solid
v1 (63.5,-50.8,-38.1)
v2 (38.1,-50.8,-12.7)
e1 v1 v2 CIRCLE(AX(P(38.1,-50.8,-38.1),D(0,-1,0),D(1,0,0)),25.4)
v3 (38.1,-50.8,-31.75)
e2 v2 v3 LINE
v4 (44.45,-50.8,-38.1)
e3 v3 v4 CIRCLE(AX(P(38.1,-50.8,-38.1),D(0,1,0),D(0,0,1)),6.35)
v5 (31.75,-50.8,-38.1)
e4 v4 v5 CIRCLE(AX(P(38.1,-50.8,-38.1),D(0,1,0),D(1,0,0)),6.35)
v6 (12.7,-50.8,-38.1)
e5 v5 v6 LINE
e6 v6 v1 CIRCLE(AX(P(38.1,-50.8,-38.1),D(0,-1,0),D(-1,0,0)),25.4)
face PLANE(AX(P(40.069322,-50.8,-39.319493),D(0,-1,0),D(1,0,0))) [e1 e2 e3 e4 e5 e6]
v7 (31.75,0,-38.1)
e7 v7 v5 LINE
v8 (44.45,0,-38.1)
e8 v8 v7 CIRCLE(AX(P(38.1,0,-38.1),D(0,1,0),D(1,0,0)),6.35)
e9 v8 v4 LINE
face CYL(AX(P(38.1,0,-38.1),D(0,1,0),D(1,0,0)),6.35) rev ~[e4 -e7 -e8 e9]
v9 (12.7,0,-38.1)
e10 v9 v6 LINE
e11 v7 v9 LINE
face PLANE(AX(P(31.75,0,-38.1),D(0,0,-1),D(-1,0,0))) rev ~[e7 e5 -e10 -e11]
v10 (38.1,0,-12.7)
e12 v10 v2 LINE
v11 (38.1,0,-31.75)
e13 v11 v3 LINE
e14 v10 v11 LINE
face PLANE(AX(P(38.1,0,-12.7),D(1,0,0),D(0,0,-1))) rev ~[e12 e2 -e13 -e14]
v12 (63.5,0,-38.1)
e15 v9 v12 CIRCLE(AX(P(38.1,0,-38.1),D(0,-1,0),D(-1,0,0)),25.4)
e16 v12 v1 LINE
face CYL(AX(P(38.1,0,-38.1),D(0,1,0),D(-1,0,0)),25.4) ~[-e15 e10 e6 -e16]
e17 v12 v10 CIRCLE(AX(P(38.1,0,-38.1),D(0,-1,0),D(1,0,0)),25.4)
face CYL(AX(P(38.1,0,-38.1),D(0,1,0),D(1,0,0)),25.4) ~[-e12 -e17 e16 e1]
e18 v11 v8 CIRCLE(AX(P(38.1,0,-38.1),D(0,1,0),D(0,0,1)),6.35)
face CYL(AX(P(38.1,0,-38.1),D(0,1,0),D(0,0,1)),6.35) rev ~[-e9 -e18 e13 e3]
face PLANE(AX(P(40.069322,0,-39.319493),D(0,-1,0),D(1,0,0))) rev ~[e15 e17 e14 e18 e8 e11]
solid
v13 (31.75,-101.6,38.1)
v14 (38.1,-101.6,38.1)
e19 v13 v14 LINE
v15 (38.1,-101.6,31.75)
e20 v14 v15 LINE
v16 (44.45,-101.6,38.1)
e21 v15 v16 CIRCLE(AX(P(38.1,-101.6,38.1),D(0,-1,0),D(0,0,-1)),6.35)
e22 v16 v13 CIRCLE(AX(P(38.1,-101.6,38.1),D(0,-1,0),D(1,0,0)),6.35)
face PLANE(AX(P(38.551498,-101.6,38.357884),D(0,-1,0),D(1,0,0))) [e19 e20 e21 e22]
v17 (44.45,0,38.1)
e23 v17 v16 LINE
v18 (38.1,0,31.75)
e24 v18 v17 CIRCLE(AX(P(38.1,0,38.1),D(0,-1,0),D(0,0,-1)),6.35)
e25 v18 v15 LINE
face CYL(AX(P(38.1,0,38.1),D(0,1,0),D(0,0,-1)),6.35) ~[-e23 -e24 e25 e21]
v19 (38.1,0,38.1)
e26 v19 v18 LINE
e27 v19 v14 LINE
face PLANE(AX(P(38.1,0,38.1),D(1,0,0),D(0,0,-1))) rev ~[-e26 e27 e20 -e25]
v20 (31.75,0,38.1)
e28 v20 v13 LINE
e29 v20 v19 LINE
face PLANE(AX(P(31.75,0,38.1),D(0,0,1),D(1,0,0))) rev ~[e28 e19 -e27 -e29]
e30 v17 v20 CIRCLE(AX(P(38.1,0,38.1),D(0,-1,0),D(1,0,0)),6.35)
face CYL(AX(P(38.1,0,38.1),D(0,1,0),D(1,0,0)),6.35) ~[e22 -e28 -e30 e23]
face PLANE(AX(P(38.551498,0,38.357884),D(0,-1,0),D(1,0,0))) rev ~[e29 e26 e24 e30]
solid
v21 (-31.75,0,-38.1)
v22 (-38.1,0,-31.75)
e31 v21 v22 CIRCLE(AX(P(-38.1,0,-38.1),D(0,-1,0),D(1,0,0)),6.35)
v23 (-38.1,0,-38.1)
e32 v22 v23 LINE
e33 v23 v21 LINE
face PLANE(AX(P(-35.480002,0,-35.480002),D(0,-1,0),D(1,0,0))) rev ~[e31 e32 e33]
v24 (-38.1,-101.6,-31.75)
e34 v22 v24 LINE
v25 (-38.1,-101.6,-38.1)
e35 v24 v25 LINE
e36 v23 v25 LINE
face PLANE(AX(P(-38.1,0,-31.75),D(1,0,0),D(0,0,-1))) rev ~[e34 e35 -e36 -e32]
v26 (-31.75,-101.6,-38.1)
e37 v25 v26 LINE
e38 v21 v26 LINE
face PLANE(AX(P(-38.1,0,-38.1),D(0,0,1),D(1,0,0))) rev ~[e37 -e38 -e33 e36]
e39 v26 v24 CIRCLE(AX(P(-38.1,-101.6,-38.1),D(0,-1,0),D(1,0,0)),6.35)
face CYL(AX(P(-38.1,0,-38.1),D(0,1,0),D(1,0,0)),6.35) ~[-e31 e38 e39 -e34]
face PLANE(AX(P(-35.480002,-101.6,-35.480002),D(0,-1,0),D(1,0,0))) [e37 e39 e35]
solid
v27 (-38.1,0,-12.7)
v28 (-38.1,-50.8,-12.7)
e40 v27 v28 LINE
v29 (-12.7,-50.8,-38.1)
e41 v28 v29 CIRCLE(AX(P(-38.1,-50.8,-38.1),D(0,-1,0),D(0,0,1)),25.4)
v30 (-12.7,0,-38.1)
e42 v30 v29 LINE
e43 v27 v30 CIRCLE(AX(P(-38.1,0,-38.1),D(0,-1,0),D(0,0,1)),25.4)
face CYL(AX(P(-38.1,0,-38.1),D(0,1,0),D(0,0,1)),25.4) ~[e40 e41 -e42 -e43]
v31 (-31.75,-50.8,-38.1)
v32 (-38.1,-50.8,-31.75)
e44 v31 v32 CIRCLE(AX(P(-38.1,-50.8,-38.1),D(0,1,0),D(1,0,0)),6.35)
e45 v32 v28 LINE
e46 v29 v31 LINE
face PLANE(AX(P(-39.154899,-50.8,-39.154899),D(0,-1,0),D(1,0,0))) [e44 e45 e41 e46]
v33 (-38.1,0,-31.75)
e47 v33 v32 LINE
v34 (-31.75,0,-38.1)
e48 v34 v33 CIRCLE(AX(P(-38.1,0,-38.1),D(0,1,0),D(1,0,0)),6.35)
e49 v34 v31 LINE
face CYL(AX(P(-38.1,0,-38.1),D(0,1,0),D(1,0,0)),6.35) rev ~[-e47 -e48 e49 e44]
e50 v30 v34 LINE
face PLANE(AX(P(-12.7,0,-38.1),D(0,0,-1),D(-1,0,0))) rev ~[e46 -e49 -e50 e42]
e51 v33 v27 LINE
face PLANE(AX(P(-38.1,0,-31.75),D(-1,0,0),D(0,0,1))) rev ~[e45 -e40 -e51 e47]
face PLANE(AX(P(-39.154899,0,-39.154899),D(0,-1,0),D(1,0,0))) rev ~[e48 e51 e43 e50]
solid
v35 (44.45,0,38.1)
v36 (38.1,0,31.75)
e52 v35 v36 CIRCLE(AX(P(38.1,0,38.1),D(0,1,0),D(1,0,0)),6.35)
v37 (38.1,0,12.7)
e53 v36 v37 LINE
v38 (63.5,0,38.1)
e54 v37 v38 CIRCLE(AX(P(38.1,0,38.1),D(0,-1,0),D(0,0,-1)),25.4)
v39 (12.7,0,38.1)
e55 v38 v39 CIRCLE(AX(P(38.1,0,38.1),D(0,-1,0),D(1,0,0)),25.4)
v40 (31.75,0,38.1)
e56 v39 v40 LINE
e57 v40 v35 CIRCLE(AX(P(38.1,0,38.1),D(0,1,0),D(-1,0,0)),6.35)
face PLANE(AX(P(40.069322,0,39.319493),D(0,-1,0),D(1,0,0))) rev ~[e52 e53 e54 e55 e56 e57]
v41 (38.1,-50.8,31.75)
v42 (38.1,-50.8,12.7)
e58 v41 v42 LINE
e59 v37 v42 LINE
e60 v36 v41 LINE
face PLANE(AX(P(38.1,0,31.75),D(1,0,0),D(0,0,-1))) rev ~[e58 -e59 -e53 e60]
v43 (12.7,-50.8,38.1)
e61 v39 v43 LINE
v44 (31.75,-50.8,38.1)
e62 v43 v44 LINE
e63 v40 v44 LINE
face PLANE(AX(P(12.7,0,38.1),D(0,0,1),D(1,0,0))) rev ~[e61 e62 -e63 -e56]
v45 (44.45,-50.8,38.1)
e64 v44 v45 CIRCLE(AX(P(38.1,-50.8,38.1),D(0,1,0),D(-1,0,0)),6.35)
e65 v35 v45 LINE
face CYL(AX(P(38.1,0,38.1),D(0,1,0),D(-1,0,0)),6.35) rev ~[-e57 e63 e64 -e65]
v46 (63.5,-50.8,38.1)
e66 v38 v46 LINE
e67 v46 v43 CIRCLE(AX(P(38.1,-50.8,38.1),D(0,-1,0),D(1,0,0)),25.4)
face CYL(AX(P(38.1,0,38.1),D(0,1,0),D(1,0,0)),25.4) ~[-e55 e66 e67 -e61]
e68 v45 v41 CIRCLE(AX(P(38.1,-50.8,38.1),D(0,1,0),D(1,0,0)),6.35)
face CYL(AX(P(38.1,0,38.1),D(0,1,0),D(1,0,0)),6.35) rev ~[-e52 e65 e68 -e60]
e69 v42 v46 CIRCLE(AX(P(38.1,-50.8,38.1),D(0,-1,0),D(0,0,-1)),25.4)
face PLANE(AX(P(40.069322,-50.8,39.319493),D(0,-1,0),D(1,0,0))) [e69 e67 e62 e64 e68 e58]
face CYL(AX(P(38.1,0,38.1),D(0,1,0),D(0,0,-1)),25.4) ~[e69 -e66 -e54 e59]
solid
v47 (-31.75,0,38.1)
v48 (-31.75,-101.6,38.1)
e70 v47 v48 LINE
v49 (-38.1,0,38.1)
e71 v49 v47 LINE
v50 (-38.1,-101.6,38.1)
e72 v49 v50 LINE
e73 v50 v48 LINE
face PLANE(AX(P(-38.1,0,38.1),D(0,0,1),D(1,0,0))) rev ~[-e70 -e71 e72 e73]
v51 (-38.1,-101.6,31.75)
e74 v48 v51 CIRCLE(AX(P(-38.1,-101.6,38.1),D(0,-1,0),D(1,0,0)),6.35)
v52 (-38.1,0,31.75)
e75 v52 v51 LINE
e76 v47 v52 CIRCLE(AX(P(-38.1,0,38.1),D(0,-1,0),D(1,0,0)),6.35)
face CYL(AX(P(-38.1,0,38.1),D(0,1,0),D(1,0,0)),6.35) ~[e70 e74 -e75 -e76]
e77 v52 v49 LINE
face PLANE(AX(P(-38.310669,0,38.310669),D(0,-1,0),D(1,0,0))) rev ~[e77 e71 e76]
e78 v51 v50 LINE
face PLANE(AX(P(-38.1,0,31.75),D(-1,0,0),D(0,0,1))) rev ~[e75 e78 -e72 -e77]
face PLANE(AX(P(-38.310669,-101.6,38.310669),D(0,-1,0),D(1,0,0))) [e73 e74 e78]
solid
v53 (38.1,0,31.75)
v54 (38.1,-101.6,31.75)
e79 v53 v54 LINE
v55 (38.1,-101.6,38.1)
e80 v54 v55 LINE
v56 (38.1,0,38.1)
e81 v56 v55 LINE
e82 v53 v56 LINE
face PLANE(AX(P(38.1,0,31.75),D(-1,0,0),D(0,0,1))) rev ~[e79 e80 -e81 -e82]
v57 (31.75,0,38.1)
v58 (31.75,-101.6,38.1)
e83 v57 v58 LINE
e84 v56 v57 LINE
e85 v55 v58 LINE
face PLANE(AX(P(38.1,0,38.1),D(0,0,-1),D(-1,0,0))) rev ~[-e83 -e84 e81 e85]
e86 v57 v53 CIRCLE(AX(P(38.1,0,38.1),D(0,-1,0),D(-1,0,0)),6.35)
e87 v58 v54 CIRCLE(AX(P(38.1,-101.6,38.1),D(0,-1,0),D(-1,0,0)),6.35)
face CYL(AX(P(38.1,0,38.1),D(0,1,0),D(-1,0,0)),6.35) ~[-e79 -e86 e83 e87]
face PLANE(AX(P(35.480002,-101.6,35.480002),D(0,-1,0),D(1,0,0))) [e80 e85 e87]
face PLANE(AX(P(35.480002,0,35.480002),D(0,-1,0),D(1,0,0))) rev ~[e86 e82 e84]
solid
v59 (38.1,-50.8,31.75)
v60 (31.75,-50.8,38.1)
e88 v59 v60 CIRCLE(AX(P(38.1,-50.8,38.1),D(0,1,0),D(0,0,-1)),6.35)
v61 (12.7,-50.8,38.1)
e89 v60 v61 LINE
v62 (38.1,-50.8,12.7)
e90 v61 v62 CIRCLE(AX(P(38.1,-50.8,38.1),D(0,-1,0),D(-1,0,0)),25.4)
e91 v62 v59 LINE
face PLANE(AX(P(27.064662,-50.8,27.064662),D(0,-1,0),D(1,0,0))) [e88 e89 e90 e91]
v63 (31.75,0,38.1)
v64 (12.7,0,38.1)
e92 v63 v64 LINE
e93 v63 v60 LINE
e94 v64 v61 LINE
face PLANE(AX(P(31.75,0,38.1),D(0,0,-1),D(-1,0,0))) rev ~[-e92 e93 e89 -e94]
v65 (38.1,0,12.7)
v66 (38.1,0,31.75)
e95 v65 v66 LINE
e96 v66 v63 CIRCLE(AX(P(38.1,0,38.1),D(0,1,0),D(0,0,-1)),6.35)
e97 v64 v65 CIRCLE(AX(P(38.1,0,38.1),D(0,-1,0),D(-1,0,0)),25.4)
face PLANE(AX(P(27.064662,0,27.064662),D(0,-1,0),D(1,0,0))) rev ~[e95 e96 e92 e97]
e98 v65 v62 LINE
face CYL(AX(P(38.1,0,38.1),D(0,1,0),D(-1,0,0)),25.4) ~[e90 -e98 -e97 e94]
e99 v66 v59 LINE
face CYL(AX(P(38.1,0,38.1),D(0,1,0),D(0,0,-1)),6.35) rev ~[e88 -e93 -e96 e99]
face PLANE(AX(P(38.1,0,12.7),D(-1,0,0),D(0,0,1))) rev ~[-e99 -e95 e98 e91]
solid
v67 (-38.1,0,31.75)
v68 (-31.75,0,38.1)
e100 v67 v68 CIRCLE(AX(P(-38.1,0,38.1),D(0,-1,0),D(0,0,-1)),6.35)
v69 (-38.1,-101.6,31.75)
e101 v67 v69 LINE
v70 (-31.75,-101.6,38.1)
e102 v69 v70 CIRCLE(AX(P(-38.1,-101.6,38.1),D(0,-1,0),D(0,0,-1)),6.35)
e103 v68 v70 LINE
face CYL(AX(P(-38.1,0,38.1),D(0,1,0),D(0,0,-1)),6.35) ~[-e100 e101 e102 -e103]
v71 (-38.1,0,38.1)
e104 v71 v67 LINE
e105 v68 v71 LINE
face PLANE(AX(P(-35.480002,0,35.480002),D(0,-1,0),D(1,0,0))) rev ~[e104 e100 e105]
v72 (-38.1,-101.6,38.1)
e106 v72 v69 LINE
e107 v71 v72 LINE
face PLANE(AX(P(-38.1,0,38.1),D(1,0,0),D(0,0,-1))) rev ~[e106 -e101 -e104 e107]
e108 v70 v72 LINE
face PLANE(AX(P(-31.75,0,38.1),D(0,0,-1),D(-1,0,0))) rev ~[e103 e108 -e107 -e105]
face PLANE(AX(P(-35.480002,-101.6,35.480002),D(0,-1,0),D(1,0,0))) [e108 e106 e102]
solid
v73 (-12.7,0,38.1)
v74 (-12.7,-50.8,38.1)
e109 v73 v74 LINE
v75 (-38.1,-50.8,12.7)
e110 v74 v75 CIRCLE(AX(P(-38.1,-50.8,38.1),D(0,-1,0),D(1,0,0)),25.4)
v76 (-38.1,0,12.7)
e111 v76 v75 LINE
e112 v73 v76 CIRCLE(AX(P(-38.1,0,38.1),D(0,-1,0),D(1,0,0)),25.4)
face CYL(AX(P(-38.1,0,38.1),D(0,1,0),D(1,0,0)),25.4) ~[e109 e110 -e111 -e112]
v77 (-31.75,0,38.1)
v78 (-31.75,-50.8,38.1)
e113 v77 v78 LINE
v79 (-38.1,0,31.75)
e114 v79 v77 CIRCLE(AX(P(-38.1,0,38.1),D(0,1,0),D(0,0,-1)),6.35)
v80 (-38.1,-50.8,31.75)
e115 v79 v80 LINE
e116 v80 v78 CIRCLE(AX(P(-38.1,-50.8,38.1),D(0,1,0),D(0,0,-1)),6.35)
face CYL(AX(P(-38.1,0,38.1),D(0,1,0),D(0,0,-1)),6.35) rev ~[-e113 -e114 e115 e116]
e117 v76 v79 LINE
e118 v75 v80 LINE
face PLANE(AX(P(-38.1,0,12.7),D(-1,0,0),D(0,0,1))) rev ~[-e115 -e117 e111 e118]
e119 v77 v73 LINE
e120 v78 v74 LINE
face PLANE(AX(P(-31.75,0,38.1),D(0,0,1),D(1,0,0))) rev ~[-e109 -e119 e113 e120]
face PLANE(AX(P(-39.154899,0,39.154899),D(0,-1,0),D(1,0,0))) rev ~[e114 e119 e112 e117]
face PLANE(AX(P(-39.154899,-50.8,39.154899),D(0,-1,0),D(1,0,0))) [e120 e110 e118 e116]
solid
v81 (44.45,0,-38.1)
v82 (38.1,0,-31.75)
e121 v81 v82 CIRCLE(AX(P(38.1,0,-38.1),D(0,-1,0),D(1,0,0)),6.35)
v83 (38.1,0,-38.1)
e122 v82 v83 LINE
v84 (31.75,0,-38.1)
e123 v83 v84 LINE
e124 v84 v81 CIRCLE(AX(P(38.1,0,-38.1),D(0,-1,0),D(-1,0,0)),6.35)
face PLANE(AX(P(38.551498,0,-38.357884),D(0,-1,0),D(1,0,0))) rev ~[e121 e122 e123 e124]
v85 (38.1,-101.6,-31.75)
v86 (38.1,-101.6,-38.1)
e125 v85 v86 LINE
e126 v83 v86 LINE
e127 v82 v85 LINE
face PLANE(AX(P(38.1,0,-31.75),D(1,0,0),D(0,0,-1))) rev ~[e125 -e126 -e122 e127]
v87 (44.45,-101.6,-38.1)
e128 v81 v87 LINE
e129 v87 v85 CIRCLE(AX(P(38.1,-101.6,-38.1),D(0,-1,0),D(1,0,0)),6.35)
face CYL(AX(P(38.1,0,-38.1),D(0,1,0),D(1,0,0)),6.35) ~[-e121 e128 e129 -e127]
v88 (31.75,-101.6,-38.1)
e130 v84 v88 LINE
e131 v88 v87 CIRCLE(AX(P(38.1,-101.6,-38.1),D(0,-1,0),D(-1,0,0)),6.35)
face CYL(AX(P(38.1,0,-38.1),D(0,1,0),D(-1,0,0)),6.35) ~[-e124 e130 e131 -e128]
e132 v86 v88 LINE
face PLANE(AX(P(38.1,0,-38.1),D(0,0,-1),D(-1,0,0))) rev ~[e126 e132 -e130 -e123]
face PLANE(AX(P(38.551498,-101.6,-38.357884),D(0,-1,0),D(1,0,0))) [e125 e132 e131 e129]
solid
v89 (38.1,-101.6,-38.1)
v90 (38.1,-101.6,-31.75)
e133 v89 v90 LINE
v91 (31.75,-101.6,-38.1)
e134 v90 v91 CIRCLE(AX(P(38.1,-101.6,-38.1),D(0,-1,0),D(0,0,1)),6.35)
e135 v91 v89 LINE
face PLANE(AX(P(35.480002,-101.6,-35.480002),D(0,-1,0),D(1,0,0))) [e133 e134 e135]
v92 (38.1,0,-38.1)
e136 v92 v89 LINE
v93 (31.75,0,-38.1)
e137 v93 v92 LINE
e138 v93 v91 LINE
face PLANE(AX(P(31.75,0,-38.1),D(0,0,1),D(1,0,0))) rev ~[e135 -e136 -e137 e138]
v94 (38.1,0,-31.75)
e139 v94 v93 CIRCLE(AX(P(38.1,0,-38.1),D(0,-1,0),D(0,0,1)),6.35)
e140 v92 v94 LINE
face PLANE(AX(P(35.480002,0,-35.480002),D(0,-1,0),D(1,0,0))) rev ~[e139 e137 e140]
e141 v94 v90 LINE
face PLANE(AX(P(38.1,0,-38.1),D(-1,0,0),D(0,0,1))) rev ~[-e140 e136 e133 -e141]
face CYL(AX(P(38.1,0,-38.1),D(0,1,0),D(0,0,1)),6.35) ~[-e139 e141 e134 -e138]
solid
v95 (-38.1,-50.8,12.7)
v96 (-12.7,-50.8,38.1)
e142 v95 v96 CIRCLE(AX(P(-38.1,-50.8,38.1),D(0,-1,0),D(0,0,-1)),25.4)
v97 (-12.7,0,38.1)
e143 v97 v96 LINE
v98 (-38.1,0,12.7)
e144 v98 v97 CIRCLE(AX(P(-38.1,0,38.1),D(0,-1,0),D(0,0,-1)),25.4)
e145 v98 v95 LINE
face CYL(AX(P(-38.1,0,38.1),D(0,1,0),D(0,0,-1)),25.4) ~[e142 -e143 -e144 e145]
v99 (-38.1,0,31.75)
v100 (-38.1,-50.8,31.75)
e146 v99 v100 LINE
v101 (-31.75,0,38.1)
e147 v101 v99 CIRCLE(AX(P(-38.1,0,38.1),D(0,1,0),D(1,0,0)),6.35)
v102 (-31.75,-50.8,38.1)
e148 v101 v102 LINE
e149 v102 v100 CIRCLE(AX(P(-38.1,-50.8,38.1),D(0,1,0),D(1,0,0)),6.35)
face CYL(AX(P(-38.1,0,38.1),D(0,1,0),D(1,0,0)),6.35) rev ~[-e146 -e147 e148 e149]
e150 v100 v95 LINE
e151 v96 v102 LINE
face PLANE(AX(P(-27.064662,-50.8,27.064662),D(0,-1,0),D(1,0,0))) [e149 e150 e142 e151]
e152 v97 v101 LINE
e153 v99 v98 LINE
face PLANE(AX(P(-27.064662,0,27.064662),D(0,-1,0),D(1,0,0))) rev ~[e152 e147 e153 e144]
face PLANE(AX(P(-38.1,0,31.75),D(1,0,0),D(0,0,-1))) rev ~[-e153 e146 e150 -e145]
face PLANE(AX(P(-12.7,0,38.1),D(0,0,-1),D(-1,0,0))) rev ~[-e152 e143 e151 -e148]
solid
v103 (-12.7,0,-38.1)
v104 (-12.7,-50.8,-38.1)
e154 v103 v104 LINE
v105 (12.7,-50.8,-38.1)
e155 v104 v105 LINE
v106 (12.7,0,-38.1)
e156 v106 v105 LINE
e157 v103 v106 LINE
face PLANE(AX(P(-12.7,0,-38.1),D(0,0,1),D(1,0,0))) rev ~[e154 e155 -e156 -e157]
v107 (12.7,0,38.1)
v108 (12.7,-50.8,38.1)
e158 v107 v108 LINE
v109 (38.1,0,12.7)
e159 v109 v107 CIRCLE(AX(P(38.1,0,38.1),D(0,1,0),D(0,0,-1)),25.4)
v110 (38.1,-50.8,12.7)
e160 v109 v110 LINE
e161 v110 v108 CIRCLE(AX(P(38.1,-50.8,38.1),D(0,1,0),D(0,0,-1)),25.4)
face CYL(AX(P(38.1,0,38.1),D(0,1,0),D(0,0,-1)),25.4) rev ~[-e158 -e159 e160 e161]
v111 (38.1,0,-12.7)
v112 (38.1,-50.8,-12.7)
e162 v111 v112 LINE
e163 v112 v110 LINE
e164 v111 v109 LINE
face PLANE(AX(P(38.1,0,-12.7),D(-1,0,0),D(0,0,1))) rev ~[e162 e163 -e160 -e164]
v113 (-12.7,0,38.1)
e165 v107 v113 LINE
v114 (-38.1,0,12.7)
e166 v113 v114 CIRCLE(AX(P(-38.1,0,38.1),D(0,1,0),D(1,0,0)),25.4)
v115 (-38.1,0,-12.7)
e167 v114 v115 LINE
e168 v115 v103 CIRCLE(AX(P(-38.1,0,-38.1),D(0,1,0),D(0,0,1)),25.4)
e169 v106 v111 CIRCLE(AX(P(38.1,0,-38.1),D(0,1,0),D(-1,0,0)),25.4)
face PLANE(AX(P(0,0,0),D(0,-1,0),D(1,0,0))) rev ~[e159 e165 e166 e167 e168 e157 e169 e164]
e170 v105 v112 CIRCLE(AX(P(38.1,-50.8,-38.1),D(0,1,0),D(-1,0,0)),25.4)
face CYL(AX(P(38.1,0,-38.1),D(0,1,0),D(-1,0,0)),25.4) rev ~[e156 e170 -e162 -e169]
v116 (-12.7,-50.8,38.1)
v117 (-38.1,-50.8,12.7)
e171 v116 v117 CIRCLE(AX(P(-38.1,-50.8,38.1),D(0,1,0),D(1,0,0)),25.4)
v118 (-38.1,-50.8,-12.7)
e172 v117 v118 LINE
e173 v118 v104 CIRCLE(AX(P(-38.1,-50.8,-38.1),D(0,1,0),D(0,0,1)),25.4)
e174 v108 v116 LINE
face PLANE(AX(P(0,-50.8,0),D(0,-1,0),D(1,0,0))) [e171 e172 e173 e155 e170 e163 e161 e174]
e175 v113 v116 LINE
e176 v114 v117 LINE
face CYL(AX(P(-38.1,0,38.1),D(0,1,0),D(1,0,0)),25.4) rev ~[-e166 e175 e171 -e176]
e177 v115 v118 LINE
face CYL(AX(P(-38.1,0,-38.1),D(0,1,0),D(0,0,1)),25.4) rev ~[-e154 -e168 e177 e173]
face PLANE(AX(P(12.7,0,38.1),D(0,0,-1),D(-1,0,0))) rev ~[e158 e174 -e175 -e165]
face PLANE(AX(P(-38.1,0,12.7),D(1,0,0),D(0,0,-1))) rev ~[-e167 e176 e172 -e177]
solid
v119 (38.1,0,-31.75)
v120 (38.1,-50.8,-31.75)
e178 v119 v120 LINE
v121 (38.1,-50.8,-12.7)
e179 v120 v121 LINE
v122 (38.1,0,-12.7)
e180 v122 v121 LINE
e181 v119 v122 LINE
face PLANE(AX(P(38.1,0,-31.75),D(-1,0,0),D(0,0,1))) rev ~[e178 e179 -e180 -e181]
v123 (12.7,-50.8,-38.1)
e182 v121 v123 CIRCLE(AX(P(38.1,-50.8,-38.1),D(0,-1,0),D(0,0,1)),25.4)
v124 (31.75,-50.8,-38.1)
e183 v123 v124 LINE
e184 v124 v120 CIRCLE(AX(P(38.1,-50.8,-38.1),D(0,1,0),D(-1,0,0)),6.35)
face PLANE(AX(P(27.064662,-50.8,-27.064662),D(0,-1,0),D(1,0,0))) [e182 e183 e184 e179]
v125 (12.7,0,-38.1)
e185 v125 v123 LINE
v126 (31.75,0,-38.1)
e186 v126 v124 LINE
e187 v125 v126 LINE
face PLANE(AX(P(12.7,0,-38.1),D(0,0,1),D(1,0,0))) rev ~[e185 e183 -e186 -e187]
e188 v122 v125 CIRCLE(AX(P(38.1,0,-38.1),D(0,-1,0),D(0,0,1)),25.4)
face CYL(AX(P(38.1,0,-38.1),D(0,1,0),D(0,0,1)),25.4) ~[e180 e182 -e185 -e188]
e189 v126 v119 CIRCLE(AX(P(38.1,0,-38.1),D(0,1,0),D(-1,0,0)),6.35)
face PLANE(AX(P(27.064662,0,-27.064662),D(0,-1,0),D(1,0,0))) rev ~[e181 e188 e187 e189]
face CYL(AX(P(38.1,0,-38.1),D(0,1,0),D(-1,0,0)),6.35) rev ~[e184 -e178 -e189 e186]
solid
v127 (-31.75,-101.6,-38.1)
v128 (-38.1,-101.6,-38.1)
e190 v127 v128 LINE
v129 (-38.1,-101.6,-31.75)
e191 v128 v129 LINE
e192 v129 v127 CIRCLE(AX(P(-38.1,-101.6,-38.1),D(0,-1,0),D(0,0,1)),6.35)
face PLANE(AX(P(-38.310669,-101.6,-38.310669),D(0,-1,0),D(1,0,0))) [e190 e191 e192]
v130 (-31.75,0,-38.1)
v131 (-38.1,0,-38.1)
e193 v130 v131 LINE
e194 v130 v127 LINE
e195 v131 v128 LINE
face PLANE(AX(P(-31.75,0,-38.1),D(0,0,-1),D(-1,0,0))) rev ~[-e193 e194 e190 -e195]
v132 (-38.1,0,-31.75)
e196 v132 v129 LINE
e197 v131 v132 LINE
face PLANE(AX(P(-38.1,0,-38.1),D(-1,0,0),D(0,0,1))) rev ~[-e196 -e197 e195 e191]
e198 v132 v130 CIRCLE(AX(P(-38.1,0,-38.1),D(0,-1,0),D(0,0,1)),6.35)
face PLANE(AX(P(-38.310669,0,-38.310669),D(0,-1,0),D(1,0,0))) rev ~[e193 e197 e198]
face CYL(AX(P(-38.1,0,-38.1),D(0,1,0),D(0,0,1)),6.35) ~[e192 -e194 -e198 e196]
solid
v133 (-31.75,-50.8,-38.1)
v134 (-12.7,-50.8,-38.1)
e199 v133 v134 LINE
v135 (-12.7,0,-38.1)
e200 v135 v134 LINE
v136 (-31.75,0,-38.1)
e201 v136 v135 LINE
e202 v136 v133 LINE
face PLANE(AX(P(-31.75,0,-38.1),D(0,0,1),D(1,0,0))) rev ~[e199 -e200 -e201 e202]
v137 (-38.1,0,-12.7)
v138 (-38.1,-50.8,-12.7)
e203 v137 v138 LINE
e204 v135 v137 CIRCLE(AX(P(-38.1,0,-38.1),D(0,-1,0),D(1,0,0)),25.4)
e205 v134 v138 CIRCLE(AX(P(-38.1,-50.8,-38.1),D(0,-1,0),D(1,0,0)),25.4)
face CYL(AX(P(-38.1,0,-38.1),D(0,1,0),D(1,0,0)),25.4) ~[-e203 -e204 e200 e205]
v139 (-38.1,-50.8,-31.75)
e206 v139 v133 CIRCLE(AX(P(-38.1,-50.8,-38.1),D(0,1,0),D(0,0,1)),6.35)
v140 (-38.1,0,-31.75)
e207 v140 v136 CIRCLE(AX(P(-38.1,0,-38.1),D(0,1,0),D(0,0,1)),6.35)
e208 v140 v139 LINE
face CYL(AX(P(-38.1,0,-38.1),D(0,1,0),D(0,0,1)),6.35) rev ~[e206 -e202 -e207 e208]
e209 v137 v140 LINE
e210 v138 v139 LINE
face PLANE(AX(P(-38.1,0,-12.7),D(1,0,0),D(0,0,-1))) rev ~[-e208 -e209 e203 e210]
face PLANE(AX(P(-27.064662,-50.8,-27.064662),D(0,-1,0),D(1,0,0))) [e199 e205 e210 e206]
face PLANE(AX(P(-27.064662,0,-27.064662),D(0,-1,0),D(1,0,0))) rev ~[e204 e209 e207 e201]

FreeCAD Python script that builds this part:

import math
import FreeCAD as App
import Part
import Sketcher
from FreeCAD import Vector
Q = App.Units.Quantity

doc = App.newDocument("Part")
body = doc.addObject("PartDesign::Body", "Body")

# Sketch on XZ plane
sketch1 = body.newObject("Sketcher::SketchObject", "Sketch")
sketch1.AttachmentSupport = (doc.getObject("XZ_Plane"), [""])
sketch1.MapMode = "FlatFace"
sketch1.addGeometry(Part.LineSegment(Vector(12.7, 38.1, 0), Vector(-12.7, 38.1, 0)), False)
sketch1.addGeometry(Part.ArcOfCircle(Part.Circle(Vector(-38.1, 38.1, 0), Vector(0, 0, 1), 25.4), math.radians(-90), math.radians(0)), False)
sketch1.addGeometry(Part.LineSegment(Vector(-38.1, 12.7, 0), Vector(-38.1, -12.7, 0)), False)
sketch1.addGeometry(Part.ArcOfCircle(Part.Circle(Vector(-38.1, -38.1, 0), Vector(0, 0, 1), 25.4), math.radians(0), math.radians(90)), False)
sketch1.addGeometry(Part.LineSegment(Vector(-12.7, -38.1, 0), Vector(12.7, -38.1, 0)), False)
sketch1.addGeometry(Part.ArcOfCircle(Part.Circle(Vector(38.1, -38.1, 0), Vector(0, 0, 1), 25.4), math.radians(90), math.radians(180)), False)
sketch1.addGeometry(Part.LineSegment(Vector(38.1, -12.7, 0), Vector(38.1, 12.7, 0)), False)
sketch1.addGeometry(Part.ArcOfCircle(Part.Circle(Vector(38.1, 38.1, 0), Vector(0, 0, 1), 25.4), math.radians(180), math.radians(270)), False)
sketch1.addConstraint(Sketcher.Constraint("Coincident", 0, 2, 1, 2))
sketch1.addConstraint(Sketcher.Constraint("Coincident", 1, 1, 2, 1))
sketch1.addConstraint(Sketcher.Constraint("Coincident", 2, 2, 3, 2))
sketch1.addConstraint(Sketcher.Constraint("Coincident", 3, 1, 4, 1))
sketch1.addConstraint(Sketcher.Constraint("Coincident", 4, 2, 5, 2))
sketch1.addConstraint(Sketcher.Constraint("Coincident", 5, 1, 6, 1))
sketch1.addConstraint(Sketcher.Constraint("Coincident", 6, 2, 7, 2))
sketch1.addConstraint(Sketcher.Constraint("Coincident", 7, 1, 0, 1))
sketch1.addConstraint(Sketcher.Constraint("Horizontal", 0))
sketch1.addConstraint(Sketcher.Constraint("Vertical", 2))
sketch1.addConstraint(Sketcher.Constraint("Horizontal", 4))
sketch1.addConstraint(Sketcher.Constraint("Vertical", 6))
sketch1.addConstraint(Sketcher.Constraint("Equal", 1, 3))
sketch1.addConstraint(Sketcher.Constraint("Equal", 3, 5))
sketch1.addConstraint(Sketcher.Constraint("Equal", 5, 7))
sketch1.addConstraint(Sketcher.Constraint("Symmetric", 1, 3, 5, 3, -1, 1))
sketch1.addConstraint(Sketcher.Constraint("Symmetric", 3, 3, 7, 3, -1, 1))
sketch1.addConstraint(Sketcher.Constraint("Symmetric", 3, 3, 5, 3, -2))
sketch1.addConstraint(Sketcher.Constraint("Horizontal", 7, 3, 0, 2))
sketch1.addConstraint(Sketcher.Constraint("Horizontal", 5, 3, 3, 1))
sketch1.addConstraint(Sketcher.Constraint("Vertical", 3, 3, 1, 1))
sketch1.addConstraint(Sketcher.Constraint("Vertical", 7, 3, 5, 1))
sketch1.addConstraint(Sketcher.Constraint("Equal", 4, 2))
sketch1.addConstraint(Sketcher.Constraint("Radius", 1, Q("1 in")))
sketch1.addConstraint(Sketcher.Constraint("DistanceX", 0, 2, 0, 1, Q("1 in")))
pad1 = body.newObject("PartDesign::Pad", "Pad")
pad1.Profile = sketch1
pad1.Length = Q("2 in")
body2 = doc.addObject("PartDesign::Body", "Body001")

# Sketch on XZ plane
sketch2 = body2.newObject("Sketcher::SketchObject", "Sketch001")
sketch2.AttachmentSupport = (doc.getObject("XZ_Plane001"), [""])
sketch2.MapMode = "FlatFace"
sketch2.addGeometry(Part.LineSegment(Vector(-31.75, 38.1, 0), Vector(-12.7, 38.1, 0)), False)
sketch2.addGeometry(Part.ArcOfCircle(Part.Circle(Vector(-38.1, 38.1, 0), Vector(0, 0, 1), 25.4), math.radians(0), math.radians(270)), False)
sketch2.addGeometry(Part.LineSegment(Vector(-38.1, 12.7, 0), Vector(-38.1, 31.75, 0)), False)
sketch2.addGeometry(Part.ArcOfCircle(Part.Circle(Vector(-38.1, 38.1, 0), Vector(0, 0, 1), 6.35), math.radians(0), math.radians(270)), False)
sketch2.addConstraint(Sketcher.Constraint("Coincident", 0, 2, 1, 1))
sketch2.addConstraint(Sketcher.Constraint("Coincident", 1, 2, 2, 1))
sketch2.addConstraint(Sketcher.Constraint("Coincident", 2, 2, 3, 2))
sketch2.addConstraint(Sketcher.Constraint("Coincident", 3, 1, 0, 1))
sketch2.addConstraint(Sketcher.Constraint("Horizontal", 0))
sketch2.addConstraint(Sketcher.Constraint("Vertical", 2))
sketch2.addConstraint(Sketcher.Constraint("Coincident", 3, 3, 1, 3))
sketch2.addConstraint(Sketcher.Constraint("Horizontal", 3, 3, 0, 2))
sketch2.addConstraint(Sketcher.Constraint("Vertical", 3, 3, 1, 2))
sketch2.addConstraint(Sketcher.Constraint("Radius", 1, Q("1 in")))
sketch2.addConstraint(Sketcher.Constraint("Radius", 3, Q("0.25 in")))
sketch2.addConstraint(Sketcher.Constraint("DistanceX", 1, 3, -1, 1, Q("1.5 in")))
sketch2.addConstraint(Sketcher.Constraint("DistanceY", -1, 1, 1, 3, Q("1.5 in")))
pad2 = body2.newObject("PartDesign::Pad", "Pad001")
pad2.Profile = sketch2
pad2.Length = Q("2 in")
body3 = doc.addObject("PartDesign::Body", "Body002")

# Sketch on XZ plane
sketch3 = body3.newObject("Sketcher::SketchObject", "Sketch002")
sketch3.AttachmentSupport = (doc.getObject("XZ_Plane002"), [""])
sketch3.MapMode = "FlatFace"
sketch3.addGeometry(Part.ArcOfCircle(Part.Circle(Vector(38.1, 38.1, 0), Vector(0, 0, 1), 25.4), math.radians(0), math.radians(180)), False)
sketch3.addGeometry(Part.LineSegment(Vector(12.7, 38.1, 0), Vector(31.75, 38.1, 0)), False)
sketch3.addGeometry(Part.ArcOfCircle(Part.Circle(Vector(38.1, 38.1, 0), Vector(0, 0, 1), 6.35), math.radians(0), math.radians(180)), False)
sketch3.addGeometry(Part.ArcOfCircle(Part.Circle(Vector(38.1, 38.1, 0), Vector(0, 0, 1), 6.35), math.radians(-90), math.radians(0)), False)
sketch3.addGeometry(Part.LineSegment(Vector(38.1, 31.75, 0), Vector(38.1, 12.7, 0)), False)
sketch3.addGeometry(Part.ArcOfCircle(Part.Circle(Vector(38.1, 38.1, 0), Vector(0, 0, 1), 25.4), math.radians(-90), math.radians(0)), False)
sketch3.addConstraint(Sketcher.Constraint("Coincident", 0, 2, 1, 1))
sketch3.addConstraint(Sketcher.Constraint("Coincident", 1, 2, 2, 2))
sketch3.addConstraint(Sketcher.Constraint("Tangent", 2, 1, 3, 2))
sketch3.addConstraint(Sketcher.Constraint("Coincident", 3, 1, 4, 1))
sketch3.addConstraint(Sketcher.Constraint("Coincident", 4, 2, 5, 1))
sketch3.addConstraint(Sketcher.Constraint("Tangent", 5, 2, 0, 1))
sketch3.addConstraint(Sketcher.Constraint("Horizontal", 1))
sketch3.addConstraint(Sketcher.Constraint("Vertical", 4))
sketch3.addConstraint(Sketcher.Constraint("Coincident", 2, 3, 0, 3))
sketch3.addConstraint(Sketcher.Constraint("Equal", 2, 3))
sketch3.addConstraint(Sketcher.Constraint("Equal", 0, 5))
sketch3.addConstraint(Sketcher.Constraint("Horizontal", 5, 3, 0, 2))
sketch3.addConstraint(Sketcher.Constraint("Horizontal", 1, 2, 2, 1))
sketch3.addConstraint(Sketcher.Constraint("Horizontal", 2, 1, 5, 2))
sketch3.addConstraint(Sketcher.Constraint("Vertical", 5, 3, 3, 1))
sketch3.addConstraint(Sketcher.Constraint("Radius", 0, Q("1 in")))
sketch3.addConstraint(Sketcher.Constraint("Radius", 2, Q("0.25 in")))
sketch3.addConstraint(Sketcher.Constraint("DistanceX", -1, 1, 0, 3, Q("1.5 in")))
sketch3.addConstraint(Sketcher.Constraint("DistanceY", -1, 1, 0, 3, Q("1.5 in")))
pad3 = body3.newObject("PartDesign::Pad", "Pad002")
pad3.Profile = sketch3
pad3.Length = Q("2 in")
body4 = doc.addObject("PartDesign::Body", "Body003")

# Sketch on XZ plane
sketch4 = body4.newObject("Sketcher::SketchObject", "Sketch003")
sketch4.AttachmentSupport = (doc.getObject("XZ_Plane003"), [""])
sketch4.MapMode = "FlatFace"
sketch4.addGeometry(Part.ArcOfCircle(Part.Circle(Vector(38.1, -38.1, 0), Vector(0, 0, 1), 25.4), math.radians(0), math.radians(90)), False)
sketch4.addGeometry(Part.LineSegment(Vector(38.1, -12.7, 0), Vector(38.1, -31.75, 0)), False)
sketch4.addGeometry(Part.ArcOfCircle(Part.Circle(Vector(38.1, -38.1, 0), Vector(0, 0, 1), 6.35), math.radians(0), math.radians(90)), False)
sketch4.addGeometry(Part.ArcOfCircle(Part.Circle(Vector(38.1, -38.1, 0), Vector(0, 0, 1), 6.35), math.radians(180), math.radians(360)), False)
sketch4.addGeometry(Part.LineSegment(Vector(31.75, -38.1, 0), Vector(12.7, -38.1, 0)), False)
sketch4.addGeometry(Part.ArcOfCircle(Part.Circle(Vector(38.1, -38.1, 0), Vector(0, 0, 1), 25.4), math.radians(180), math.radians(360)), False)
sketch4.addConstraint(Sketcher.Constraint("Coincident", 0, 2, 1, 1))
sketch4.addConstraint(Sketcher.Constraint("Coincident", 1, 2, 2, 2))
sketch4.addConstraint(Sketcher.Constraint("Tangent", 2, 1, 3, 2))
sketch4.addConstraint(Sketcher.Constraint("Coincident", 3, 1, 4, 1))
sketch4.addConstraint(Sketcher.Constraint("Coincident", 4, 2, 5, 1))
sketch4.addConstraint(Sketcher.Constraint("Tangent", 5, 2, 0, 1))
sketch4.addConstraint(Sketcher.Constraint("Vertical", 1))
sketch4.addConstraint(Sketcher.Constraint("Horizontal", 4))
sketch4.addConstraint(Sketcher.Constraint("Coincident", 2, 3, 0, 3))
sketch4.addConstraint(Sketcher.Constraint("Equal", 2, 3))
sketch4.addConstraint(Sketcher.Constraint("Equal", 0, 5))
sketch4.addConstraint(Sketcher.Constraint("Horizontal", 5, 3, 2, 1))
sketch4.addConstraint(Sketcher.Constraint("Horizontal", 2, 1, 3, 1))
sketch4.addConstraint(Sketcher.Constraint("Horizontal", 4, 2, 5, 2))
sketch4.addConstraint(Sketcher.Constraint("Vertical", 5, 3, 0, 2))
sketch4.addConstraint(Sketcher.Constraint("Radius", 0, Q("1 in")))
sketch4.addConstraint(Sketcher.Constraint("Radius", 2, Q("0.25 in")))
sketch4.addConstraint(Sketcher.Constraint("DistanceX", -1, 1, 0, 3, Q("1.5 in")))
sketch4.addConstraint(Sketcher.Constraint("DistanceY", 0, 3, -1, 1, Q("1.5 in")))
pad4 = body4.newObject("PartDesign::Pad", "Pad003")
pad4.Profile = sketch4
pad4.Length = Q("2 in")
body5 = doc.addObject("PartDesign::Body", "Body004")

# Sketch on XZ plane
sketch5 = body5.newObject("Sketcher::SketchObject", "Sketch004")
sketch5.AttachmentSupport = (doc.getObject("XZ_Plane004"), [""])
sketch5.MapMode = "FlatFace"
sketch5.addGeometry(Part.LineSegment(Vector(-38.1, -31.75, 0), Vector(-38.1, -12.7, 0)), False)
sketch5.addGeometry(Part.ArcOfCircle(Part.Circle(Vector(-38.1, -38.1, 0), Vector(0, 0, 1), 25.4), math.radians(90), math.radians(360)), False)
sketch5.addGeometry(Part.LineSegment(Vector(-12.7, -38.1, 0), Vector(-31.75, -38.1, 0)), False)
sketch5.addGeometry(Part.ArcOfCircle(Part.Circle(Vector(-38.1, -38.1, 0), Vector(0, 0, 1), 6.35), math.radians(90), math.radians(360)), False)
sketch5.addConstraint(Sketcher.Constraint("Coincident", 0, 2, 1, 1))
sketch5.addConstraint(Sketcher.Constraint("Coincident", 1, 2, 2, 1))
sketch5.addConstraint(Sketcher.Constraint("Coincident", 2, 2, 3, 2))
sketch5.addConstraint(Sketcher.Constraint("Coincident", 3, 1, 0, 1))
sketch5.addConstraint(Sketcher.Constraint("Vertical", 0))
sketch5.addConstraint(Sketcher.Constraint("Horizontal", 2))
sketch5.addConstraint(Sketcher.Constraint("Coincident", 3, 3, 1, 3))
sketch5.addConstraint(Sketcher.Constraint("Horizontal", 3, 3, 1, 2))
sketch5.addConstraint(Sketcher.Constraint("Vertical", 3, 3, 0, 2))
sketch5.addConstraint(Sketcher.Constraint("Radius", 1, Q("1 in")))
sketch5.addConstraint(Sketcher.Constraint("Radius", 3, Q("0.25 in")))
sketch5.addConstraint(Sketcher.Constraint("DistanceX", 1, 3, -1, 1, Q("1.5 in")))
sketch5.addConstraint(Sketcher.Constraint("DistanceY", 1, 3, -1, 1, Q("1.5 in")))
pad5 = body5.newObject("PartDesign::Pad", "Pad004")
pad5.Profile = sketch5
pad5.Length = Q("2 in")
body6 = doc.addObject("PartDesign::Body", "Body005")

# Sketch on XZ plane
sketch6 = body6.newObject("Sketcher::SketchObject", "Sketch005")
sketch6.AttachmentSupport = (doc.getObject("XZ_Plane005"), [""])
sketch6.MapMode = "FlatFace"
sketch6.addGeometry(Part.LineSegment(Vector(-38.1, 38.1, 0), Vector(-31.75, 38.1, 0)), False)
sketch6.addGeometry(Part.ArcOfCircle(Part.Circle(Vector(-38.1, 38.1, 0), Vector(0, 0, 1), 6.35), math.radians(0), math.radians(270)), False)
sketch6.addGeometry(Part.LineSegment(Vector(-38.1, 31.75, 0), Vector(-38.1, 38.1, 0)), False)
sketch6.addConstraint(Sketcher.Constraint("Coincident", 0, 2, 1, 1))
sketch6.addConstraint(Sketcher.Constraint("Coincident", 1, 2, 2, 1))
sketch6.addConstraint(Sketcher.Constraint("Coincident", 2, 2, 0, 1))
sketch6.addConstraint(Sketcher.Constraint("Horizontal", 0))
sketch6.addConstraint(Sketcher.Constraint("Vertical", 2))
sketch6.addConstraint(Sketcher.Constraint("Coincident", 2, 2, 1, 3))
sketch6.addConstraint(Sketcher.Constraint("Radius", 1, Q("0.25 in")))
sketch6.addConstraint(Sketcher.Constraint("DistanceX", 1, 3, -1, 1, Q("1.5 in")))
sketch6.addConstraint(Sketcher.Constraint("DistanceY", -1, 1, 1, 3, Q("1.5 in")))
pad6 = body6.newObject("PartDesign::Pad", "Pad005")
pad6.Profile = sketch6
pad6.Length = Q("4 in")
body7 = doc.addObject("PartDesign::Body", "Body006")

# Sketch on XZ plane
sketch7 = body7.newObject("Sketcher::SketchObject", "Sketch006")
sketch7.AttachmentSupport = (doc.getObject("XZ_Plane006"), [""])
sketch7.MapMode = "FlatFace"
sketch7.addGeometry(Part.ArcOfCircle(Part.Circle(Vector(38.1, 38.1, 0), Vector(0, 0, 1), 6.35), math.radians(0), math.radians(180)), False)
sketch7.addGeometry(Part.LineSegment(Vector(31.75, 38.1, 0), Vector(38.1, 38.1, 0)), False)
sketch7.addGeometry(Part.LineSegment(Vector(38.1, 38.1, 0), Vector(38.1, 31.75, 0)), False)
sketch7.addGeometry(Part.ArcOfCircle(Part.Circle(Vector(38.1, 38.1, 0), Vector(0, 0, 1), 6.35), math.radians(-90), math.radians(0)), False)
sketch7.addConstraint(Sketcher.Constraint("Coincident", 0, 2, 1, 1))
sketch7.addConstraint(Sketcher.Constraint("Coincident", 1, 2, 2, 1))
sketch7.addConstraint(Sketcher.Constraint("Coincident", 2, 2, 3, 1))
sketch7.addConstraint(Sketcher.Constraint("Tangent", 3, 2, 0, 1))
sketch7.addConstraint(Sketcher.Constraint("Horizontal", 1))
sketch7.addConstraint(Sketcher.Constraint("Vertical", 2))
sketch7.addConstraint(Sketcher.Constraint("Coincident", 1, 2, 0, 3))
sketch7.addConstraint(Sketcher.Constraint("Equal", 0, 3))
sketch7.addConstraint(Sketcher.Constraint("Horizontal", 1, 2, 3, 2))
sketch7.addConstraint(Sketcher.Constraint("Radius", 0, Q("0.25 in")))
sketch7.addConstraint(Sketcher.Constraint("DistanceX", -1, 1, 0, 3, Q("1.5 in")))
sketch7.addConstraint(Sketcher.Constraint("DistanceY", -1, 1, 0, 3, Q("1.5 in")))
pad7 = body7.newObject("PartDesign::Pad", "Pad006")
pad7.Profile = sketch7
pad7.Length = Q("4 in")
body8 = doc.addObject("PartDesign::Body", "Body007")

# Sketch on XZ plane
sketch8 = body8.newObject("Sketcher::SketchObject", "Sketch007")
sketch8.AttachmentSupport = (doc.getObject("XZ_Plane007"), [""])
sketch8.MapMode = "FlatFace"
sketch8.addGeometry(Part.ArcOfCircle(Part.Circle(Vector(38.1, -38.1, 0), Vector(0, 0, 1), 6.35), math.radians(0), math.radians(90)), False)
sketch8.addGeometry(Part.LineSegment(Vector(38.1, -31.75, 0), Vector(38.1, -38.1, 0)), False)
sketch8.addGeometry(Part.LineSegment(Vector(38.1, -38.1, 0), Vector(31.75, -38.1, 0)), False)
sketch8.addGeometry(Part.ArcOfCircle(Part.Circle(Vector(38.1, -38.1, 0), Vector(0, 0, 1), 6.35), math.radians(180), math.radians(360)), False)
sketch8.addConstraint(Sketcher.Constraint("Coincident", 0, 2, 1, 1))
sketch8.addConstraint(Sketcher.Constraint("Coincident", 1, 2, 2, 1))
sketch8.addConstraint(Sketcher.Constraint("Coincident", 2, 2, 3, 1))
sketch8.addConstraint(Sketcher.Constraint("Tangent", 3, 2, 0, 1))
sketch8.addConstraint(Sketcher.Constraint("Vertical", 1))
sketch8.addConstraint(Sketcher.Constraint("Horizontal", 2))
sketch8.addConstraint(Sketcher.Constraint("Coincident", 1, 2, 0, 3))
sketch8.addConstraint(Sketcher.Constraint("Equal", 0, 3))
sketch8.addConstraint(Sketcher.Constraint("Horizontal", 2, 2, 3, 2))
sketch8.addConstraint(Sketcher.Constraint("Radius", 0, Q("0.25 in")))
sketch8.addConstraint(Sketcher.Constraint("DistanceX", -1, 1, 0, 3, Q("1.5 in")))
sketch8.addConstraint(Sketcher.Constraint("DistanceY", 0, 3, -1, 1, Q("1.5 in")))
pad8 = body8.newObject("PartDesign::Pad", "Pad007")
pad8.Profile = sketch8
pad8.Length = Q("4 in")
body9 = doc.addObject("PartDesign::Body", "Body008")

# Sketch on XZ plane
sketch9 = body9.newObject("Sketcher::SketchObject", "Sketch008")
sketch9.AttachmentSupport = (doc.getObject("XZ_Plane008"), [""])
sketch9.MapMode = "FlatFace"
sketch9.addGeometry(Part.LineSegment(Vector(-38.1, -38.1, 0), Vector(-38.1, -31.75, 0)), False)
sketch9.addGeometry(Part.ArcOfCircle(Part.Circle(Vector(-38.1, -38.1, 0), Vector(0, 0, 1), 6.35), math.radians(90), math.radians(360)), False)
sketch9.addGeometry(Part.LineSegment(Vector(-31.75, -38.1, 0), Vector(-38.1, -38.1, 0)), False)
sketch9.addConstraint(Sketcher.Constraint("Coincident", 0, 2, 1, 1))
sketch9.addConstraint(Sketcher.Constraint("Coincident", 1, 2, 2, 1))
sketch9.addConstraint(Sketcher.Constraint("Coincident", 2, 2, 0, 1))
sketch9.addConstraint(Sketcher.Constraint("Vertical", 0))
sketch9.addConstraint(Sketcher.Constraint("Horizontal", 2))
sketch9.addConstraint(Sketcher.Constraint("Coincident", 2, 2, 1, 3))
sketch9.addConstraint(Sketcher.Constraint("Radius", 1, Q("0.25 in")))
sketch9.addConstraint(Sketcher.Constraint("DistanceX", 1, 3, -1, 1, Q("1.5 in")))
sketch9.addConstraint(Sketcher.Constraint("DistanceY", 1, 3, -1, 1, Q("1.5 in")))
pad9 = body9.newObject("PartDesign::Pad", "Pad008")
pad9.Profile = sketch9
pad9.Length = Q("4 in")
body10 = doc.addObject("PartDesign::Body", "Body009")

# Sketch on XZ plane
sketch10 = body10.newObject("Sketcher::SketchObject", "Sketch009")
sketch10.AttachmentSupport = (doc.getObject("XZ_Plane009"), [""])
sketch10.MapMode = "FlatFace"
sketch10.addGeometry(Part.ArcOfCircle(Part.Circle(Vector(-38.1, -38.1, 0), Vector(0, 0, 1), 25.4), math.radians(0), math.radians(90)), False)
sketch10.addGeometry(Part.LineSegment(Vector(-38.1, -12.7, 0), Vector(-38.1, -31.75, 0)), False)
sketch10.addGeometry(Part.ArcOfCircle(Part.Circle(Vector(-38.1, -38.1, 0), Vector(0, 0, 1), 6.35), math.radians(0), math.radians(90)), False)
sketch10.addGeometry(Part.LineSegment(Vector(-31.75, -38.1, 0), Vector(-12.7, -38.1, 0)), False)
sketch10.addConstraint(Sketcher.Constraint("Coincident", 0, 2, 1, 1))
sketch10.addConstraint(Sketcher.Constraint("Coincident", 1, 2, 2, 2))
sketch10.addConstraint(Sketcher.Constraint("Coincident", 2, 1, 3, 1))
sketch10.addConstraint(Sketcher.Constraint("Coincident", 3, 2, 0, 1))
sketch10.addConstraint(Sketcher.Constraint("Vertical", 1))
sketch10.addConstraint(Sketcher.Constraint("Horizontal", 3))
sketch10.addConstraint(Sketcher.Constraint("Coincident", 2, 3, 0, 3))
sketch10.addConstraint(Sketcher.Constraint("Horizontal", 0, 3, 2, 1))
sketch10.addConstraint(Sketcher.Constraint("Vertical", 2, 3, 0, 2))
sketch10.addConstraint(Sketcher.Constraint("Radius", 0, Q("1 in")))
sketch10.addConstraint(Sketcher.Constraint("Radius", 2, Q("0.25 in")))
sketch10.addConstraint(Sketcher.Constraint("DistanceX", 0, 3, -1, 1, Q("1.5 in")))
sketch10.addConstraint(Sketcher.Constraint("DistanceY", 0, 3, -1, 1, Q("1.5 in")))
pad10 = body10.newObject("PartDesign::Pad", "Pad009")
pad10.Profile = sketch10
pad10.Length = Q("2 in")
body11 = doc.addObject("PartDesign::Body", "Body010")

# Sketch on XZ plane
sketch11 = body11.newObject("Sketcher::SketchObject", "Sketch010")
sketch11.AttachmentSupport = (doc.getObject("XZ_Plane010"), [""])
sketch11.MapMode = "FlatFace"
sketch11.addGeometry(Part.LineSegment(Vector(38.1, -31.75, 0), Vector(38.1, -12.7, 0)), False)
sketch11.addGeometry(Part.ArcOfCircle(Part.Circle(Vector(38.1, -38.1, 0), Vector(0, 0, 1), 25.4), math.radians(90), math.radians(180)), False)
sketch11.addGeometry(Part.LineSegment(Vector(12.7, -38.1, 0), Vector(31.75, -38.1, 0)), False)
sketch11.addGeometry(Part.ArcOfCircle(Part.Circle(Vector(38.1, -38.1, 0), Vector(0, 0, 1), 6.35), math.radians(90), math.radians(180)), False)
sketch11.addConstraint(Sketcher.Constraint("Coincident", 0, 2, 1, 1))
sketch11.addConstraint(Sketcher.Constraint("Coincident", 1, 2, 2, 1))
sketch11.addConstraint(Sketcher.Constraint("Coincident", 2, 2, 3, 2))
sketch11.addConstraint(Sketcher.Constraint("Coincident", 3, 1, 0, 1))
sketch11.addConstraint(Sketcher.Constraint("Vertical", 0))
sketch11.addConstraint(Sketcher.Constraint("Horizontal", 2))
sketch11.addConstraint(Sketcher.Constraint("Coincident", 3, 3, 1, 3))
sketch11.addConstraint(Sketcher.Constraint("Horizontal", 3, 3, 1, 2))
sketch11.addConstraint(Sketcher.Constraint("Vertical", 3, 3, 0, 2))
sketch11.addConstraint(Sketcher.Constraint("Radius", 1, Q("1 in")))
sketch11.addConstraint(Sketcher.Constraint("Radius", 3, Q("0.25 in")))
sketch11.addConstraint(Sketcher.Constraint("DistanceX", -1, 1, 1, 3, Q("1.5 in")))
sketch11.addConstraint(Sketcher.Constraint("DistanceY", 1, 3, -1, 1, Q("1.5 in")))
pad11 = body11.newObject("PartDesign::Pad", "Pad010")
pad11.Profile = sketch11
pad11.Length = Q("2 in")
body12 = doc.addObject("PartDesign::Body", "Body011")

# Sketch on XZ plane
sketch12 = body12.newObject("Sketcher::SketchObject", "Sketch011")
sketch12.AttachmentSupport = (doc.getObject("XZ_Plane011"), [""])
sketch12.MapMode = "FlatFace"
sketch12.addGeometry(Part.LineSegment(Vector(31.75, 38.1, 0), Vector(12.7, 38.1, 0)), False)
sketch12.addGeometry(Part.ArcOfCircle(Part.Circle(Vector(38.1, 38.1, 0), Vector(0, 0, 1), 25.4), math.radians(180), math.radians(270)), False)
sketch12.addGeometry(Part.LineSegment(Vector(38.1, 12.7, 0), Vector(38.1, 31.75, 0)), False)
sketch12.addGeometry(Part.ArcOfCircle(Part.Circle(Vector(38.1, 38.1, 0), Vector(0, 0, 1), 6.35), math.radians(180), math.radians(270)), False)
sketch12.addConstraint(Sketcher.Constraint("Coincident", 0, 2, 1, 1))
sketch12.addConstraint(Sketcher.Constraint("Coincident", 1, 2, 2, 1))
sketch12.addConstraint(Sketcher.Constraint("Coincident", 2, 2, 3, 2))
sketch12.addConstraint(Sketcher.Constraint("Coincident", 3, 1, 0, 1))
sketch12.addConstraint(Sketcher.Constraint("Horizontal", 0))
sketch12.addConstraint(Sketcher.Constraint("Vertical", 2))
sketch12.addConstraint(Sketcher.Constraint("Coincident", 3, 3, 1, 3))
sketch12.addConstraint(Sketcher.Constraint("Horizontal", 3, 3, 0, 2))
sketch12.addConstraint(Sketcher.Constraint("Vertical", 3, 3, 1, 2))
sketch12.addConstraint(Sketcher.Constraint("Radius", 1, Q("1 in")))
sketch12.addConstraint(Sketcher.Constraint("Radius", 3, Q("0.25 in")))
sketch12.addConstraint(Sketcher.Constraint("DistanceX", -1, 1, 1, 3, Q("1.5 in")))
sketch12.addConstraint(Sketcher.Constraint("DistanceY", -1, 1, 1, 3, Q("1.5 in")))
pad12 = body12.newObject("PartDesign::Pad", "Pad011")
pad12.Profile = sketch12
pad12.Length = Q("2 in")
body13 = doc.addObject("PartDesign::Body", "Body012")

# Sketch on XZ plane
sketch13 = body13.newObject("Sketcher::SketchObject", "Sketch012")
sketch13.AttachmentSupport = (doc.getObject("XZ_Plane012"), [""])
sketch13.MapMode = "FlatFace"
sketch13.addGeometry(Part.ArcOfCircle(Part.Circle(Vector(-38.1, 38.1, 0), Vector(0, 0, 1), 25.4), math.radians(-90), math.radians(0)), False)
sketch13.addGeometry(Part.LineSegment(Vector(-12.7, 38.1, 0), Vector(-31.75, 38.1, 0)), False)
sketch13.addGeometry(Part.ArcOfCircle(Part.Circle(Vector(-38.1, 38.1, 0), Vector(0, 0, 1), 6.35), math.radians(-90), math.radians(0)), False)
sketch13.addGeometry(Part.LineSegment(Vector(-38.1, 31.75, 0), Vector(-38.1, 12.7, 0)), False)
sketch13.addConstraint(Sketcher.Constraint("Coincident", 0, 2, 1, 1))
sketch13.addConstraint(Sketcher.Constraint("Coincident", 1, 2, 2, 2))
sketch13.addConstraint(Sketcher.Constraint("Coincident", 2, 1, 3, 1))
sketch13.addConstraint(Sketcher.Constraint("Coincident", 3, 2, 0, 1))
sketch13.addConstraint(Sketcher.Constraint("Horizontal", 1))
sketch13.addConstraint(Sketcher.Constraint("Vertical", 3))
sketch13.addConstraint(Sketcher.Constraint("Coincident", 2, 3, 0, 3))
sketch13.addConstraint(Sketcher.Constraint("Horizontal", 2, 3, 0, 2))
sketch13.addConstraint(Sketcher.Constraint("Vertical", 0, 3, 2, 1))
sketch13.addConstraint(Sketcher.Constraint("Radius", 0, Q("1 in")))
sketch13.addConstraint(Sketcher.Constraint("Radius", 2, Q("0.25 in")))
sketch13.addConstraint(Sketcher.Constraint("DistanceX", 0, 3, -1, 1, Q("1.5 in")))
sketch13.addConstraint(Sketcher.Constraint("DistanceY", -1, 1, 0, 3, Q("1.5 in")))
pad13 = body13.newObject("PartDesign::Pad", "Pad012")
pad13.Profile = sketch13
pad13.Length = Q("2 in")
body14 = doc.addObject("PartDesign::Body", "Body013")

# Sketch on XZ plane
sketch14 = body14.newObject("Sketcher::SketchObject", "Sketch013")
sketch14.AttachmentSupport = (doc.getObject("XZ_Plane013"), [""])
sketch14.MapMode = "FlatFace"
sketch14.addGeometry(Part.ArcOfCircle(Part.Circle(Vector(-38.1, 38.1, 0), Vector(0, 0, 1), 6.35), math.radians(-90), math.radians(0)), False)
sketch14.addGeometry(Part.LineSegment(Vector(-31.75, 38.1, 0), Vector(-38.1, 38.1, 0)), False)
sketch14.addGeometry(Part.LineSegment(Vector(-38.1, 38.1, 0), Vector(-38.1, 31.75, 0)), False)
sketch14.addConstraint(Sketcher.Constraint("Coincident", 0, 2, 1, 1))
sketch14.addConstraint(Sketcher.Constraint("Coincident", 1, 2, 2, 1))
sketch14.addConstraint(Sketcher.Constraint("Coincident", 2, 2, 0, 1))
sketch14.addConstraint(Sketcher.Constraint("Horizontal", 1))
sketch14.addConstraint(Sketcher.Constraint("Vertical", 2))
sketch14.addConstraint(Sketcher.Constraint("Coincident", 1, 2, 0, 3))
sketch14.addConstraint(Sketcher.Constraint("Radius", 0, Q("0.25 in")))
sketch14.addConstraint(Sketcher.Constraint("DistanceX", 0, 3, -1, 1, Q("1.5 in")))
sketch14.addConstraint(Sketcher.Constraint("DistanceY", -1, 1, 0, 3, Q("1.5 in")))
pad14 = body14.newObject("PartDesign::Pad", "Pad013")
pad14.Profile = sketch14
pad14.Length = Q("4 in")
body15 = doc.addObject("PartDesign::Body", "Body014")

# Sketch on XZ plane
sketch15 = body15.newObject("Sketcher::SketchObject", "Sketch014")
sketch15.AttachmentSupport = (doc.getObject("XZ_Plane014"), [""])
sketch15.MapMode = "FlatFace"
sketch15.addGeometry(Part.ArcOfCircle(Part.Circle(Vector(-38.1, -38.1, 0), Vector(0, 0, 1), 6.35), math.radians(0), math.radians(90)), False)
sketch15.addGeometry(Part.LineSegment(Vector(-38.1, -31.75, 0), Vector(-38.1, -38.1, 0)), False)
sketch15.addGeometry(Part.LineSegment(Vector(-38.1, -38.1, 0), Vector(-31.75, -38.1, 0)), False)
sketch15.addConstraint(Sketcher.Constraint("Coincident", 0, 2, 1, 1))
sketch15.addConstraint(Sketcher.Constraint("Coincident", 1, 2, 2, 1))
sketch15.addConstraint(Sketcher.Constraint("Coincident", 2, 2, 0, 1))
sketch15.addConstraint(Sketcher.Constraint("Vertical", 1))
sketch15.addConstraint(Sketcher.Constraint("Horizontal", 2))
sketch15.addConstraint(Sketcher.Constraint("Coincident", 1, 2, 0, 3))
sketch15.addConstraint(Sketcher.Constraint("Radius", 0, Q("0.25 in")))
sketch15.addConstraint(Sketcher.Constraint("DistanceX", 0, 3, -1, 1, Q("1.5 in")))
sketch15.addConstraint(Sketcher.Constraint("DistanceY", 0, 3, -1, 1, Q("1.5 in")))
pad15 = body15.newObject("PartDesign::Pad", "Pad014")
pad15.Profile = sketch15
pad15.Length = Q("4 in")
body16 = doc.addObject("PartDesign::Body", "Body015")

# Sketch on XZ plane
sketch16 = body16.newObject("Sketcher::SketchObject", "Sketch015")
sketch16.AttachmentSupport = (doc.getObject("XZ_Plane015"), [""])
sketch16.MapMode = "FlatFace"
sketch16.addGeometry(Part.LineSegment(Vector(38.1, -38.1, 0), Vector(38.1, -31.75, 0)), False)
sketch16.addGeometry(Part.ArcOfCircle(Part.Circle(Vector(38.1, -38.1, 0), Vector(0, 0, 1), 6.35), math.radians(90), math.radians(180)), False)
sketch16.addGeometry(Part.LineSegment(Vector(31.75, -38.1, 0), Vector(38.1, -38.1, 0)), False)
sketch16.addConstraint(Sketcher.Constraint("Coincident", 0, 2, 1, 1))
sketch16.addConstraint(Sketcher.Constraint("Coincident", 1, 2, 2, 1))
sketch16.addConstraint(Sketcher.Constraint("Coincident", 2, 2, 0, 1))
sketch16.addConstraint(Sketcher.Constraint("Vertical", 0))
sketch16.addConstraint(Sketcher.Constraint("Horizontal", 2))
sketch16.addConstraint(Sketcher.Constraint("Coincident", 2, 2, 1, 3))
sketch16.addConstraint(Sketcher.Constraint("Radius", 1, Q("0.25 in")))
sketch16.addConstraint(Sketcher.Constraint("DistanceX", -1, 1, 1, 3, Q("1.5 in")))
sketch16.addConstraint(Sketcher.Constraint("DistanceY", 1, 3, -1, 1, Q("1.5 in")))
pad16 = body16.newObject("PartDesign::Pad", "Pad015")
pad16.Profile = sketch16
pad16.Length = Q("4 in")
body17 = doc.addObject("PartDesign::Body", "Body016")

# Sketch on XZ plane
sketch17 = body17.newObject("Sketcher::SketchObject", "Sketch016")
sketch17.AttachmentSupport = (doc.getObject("XZ_Plane016"), [""])
sketch17.MapMode = "FlatFace"
sketch17.addGeometry(Part.LineSegment(Vector(38.1, 38.1, 0), Vector(31.75, 38.1, 0)), False)
sketch17.addGeometry(Part.ArcOfCircle(Part.Circle(Vector(38.1, 38.1, 0), Vector(0, 0, 1), 6.35), math.radians(180), math.radians(270)), False)
sketch17.addGeometry(Part.LineSegment(Vector(38.1, 31.75, 0), Vector(38.1, 38.1, 0)), False)
sketch17.addConstraint(Sketcher.Constraint("Coincident", 0, 2, 1, 1))
sketch17.addConstraint(Sketcher.Constraint("Coincident", 1, 2, 2, 1))
sketch17.addConstraint(Sketcher.Constraint("Coincident", 2, 2, 0, 1))
sketch17.addConstraint(Sketcher.Constraint("Horizontal", 0))
sketch17.addConstraint(Sketcher.Constraint("Vertical", 2))
sketch17.addConstraint(Sketcher.Constraint("Coincident", 2, 2, 1, 3))
sketch17.addConstraint(Sketcher.Constraint("Radius", 1, Q("0.25 in")))
sketch17.addConstraint(Sketcher.Constraint("DistanceX", -1, 1, 1, 3, Q("1.5 in")))
sketch17.addConstraint(Sketcher.Constraint("DistanceY", -1, 1, 1, 3, Q("1.5 in")))
pad17 = body17.newObject("PartDesign::Pad", "Pad016")
pad17.Profile = sketch17
pad17.Length = Q("4 in")

doc.recompute()
